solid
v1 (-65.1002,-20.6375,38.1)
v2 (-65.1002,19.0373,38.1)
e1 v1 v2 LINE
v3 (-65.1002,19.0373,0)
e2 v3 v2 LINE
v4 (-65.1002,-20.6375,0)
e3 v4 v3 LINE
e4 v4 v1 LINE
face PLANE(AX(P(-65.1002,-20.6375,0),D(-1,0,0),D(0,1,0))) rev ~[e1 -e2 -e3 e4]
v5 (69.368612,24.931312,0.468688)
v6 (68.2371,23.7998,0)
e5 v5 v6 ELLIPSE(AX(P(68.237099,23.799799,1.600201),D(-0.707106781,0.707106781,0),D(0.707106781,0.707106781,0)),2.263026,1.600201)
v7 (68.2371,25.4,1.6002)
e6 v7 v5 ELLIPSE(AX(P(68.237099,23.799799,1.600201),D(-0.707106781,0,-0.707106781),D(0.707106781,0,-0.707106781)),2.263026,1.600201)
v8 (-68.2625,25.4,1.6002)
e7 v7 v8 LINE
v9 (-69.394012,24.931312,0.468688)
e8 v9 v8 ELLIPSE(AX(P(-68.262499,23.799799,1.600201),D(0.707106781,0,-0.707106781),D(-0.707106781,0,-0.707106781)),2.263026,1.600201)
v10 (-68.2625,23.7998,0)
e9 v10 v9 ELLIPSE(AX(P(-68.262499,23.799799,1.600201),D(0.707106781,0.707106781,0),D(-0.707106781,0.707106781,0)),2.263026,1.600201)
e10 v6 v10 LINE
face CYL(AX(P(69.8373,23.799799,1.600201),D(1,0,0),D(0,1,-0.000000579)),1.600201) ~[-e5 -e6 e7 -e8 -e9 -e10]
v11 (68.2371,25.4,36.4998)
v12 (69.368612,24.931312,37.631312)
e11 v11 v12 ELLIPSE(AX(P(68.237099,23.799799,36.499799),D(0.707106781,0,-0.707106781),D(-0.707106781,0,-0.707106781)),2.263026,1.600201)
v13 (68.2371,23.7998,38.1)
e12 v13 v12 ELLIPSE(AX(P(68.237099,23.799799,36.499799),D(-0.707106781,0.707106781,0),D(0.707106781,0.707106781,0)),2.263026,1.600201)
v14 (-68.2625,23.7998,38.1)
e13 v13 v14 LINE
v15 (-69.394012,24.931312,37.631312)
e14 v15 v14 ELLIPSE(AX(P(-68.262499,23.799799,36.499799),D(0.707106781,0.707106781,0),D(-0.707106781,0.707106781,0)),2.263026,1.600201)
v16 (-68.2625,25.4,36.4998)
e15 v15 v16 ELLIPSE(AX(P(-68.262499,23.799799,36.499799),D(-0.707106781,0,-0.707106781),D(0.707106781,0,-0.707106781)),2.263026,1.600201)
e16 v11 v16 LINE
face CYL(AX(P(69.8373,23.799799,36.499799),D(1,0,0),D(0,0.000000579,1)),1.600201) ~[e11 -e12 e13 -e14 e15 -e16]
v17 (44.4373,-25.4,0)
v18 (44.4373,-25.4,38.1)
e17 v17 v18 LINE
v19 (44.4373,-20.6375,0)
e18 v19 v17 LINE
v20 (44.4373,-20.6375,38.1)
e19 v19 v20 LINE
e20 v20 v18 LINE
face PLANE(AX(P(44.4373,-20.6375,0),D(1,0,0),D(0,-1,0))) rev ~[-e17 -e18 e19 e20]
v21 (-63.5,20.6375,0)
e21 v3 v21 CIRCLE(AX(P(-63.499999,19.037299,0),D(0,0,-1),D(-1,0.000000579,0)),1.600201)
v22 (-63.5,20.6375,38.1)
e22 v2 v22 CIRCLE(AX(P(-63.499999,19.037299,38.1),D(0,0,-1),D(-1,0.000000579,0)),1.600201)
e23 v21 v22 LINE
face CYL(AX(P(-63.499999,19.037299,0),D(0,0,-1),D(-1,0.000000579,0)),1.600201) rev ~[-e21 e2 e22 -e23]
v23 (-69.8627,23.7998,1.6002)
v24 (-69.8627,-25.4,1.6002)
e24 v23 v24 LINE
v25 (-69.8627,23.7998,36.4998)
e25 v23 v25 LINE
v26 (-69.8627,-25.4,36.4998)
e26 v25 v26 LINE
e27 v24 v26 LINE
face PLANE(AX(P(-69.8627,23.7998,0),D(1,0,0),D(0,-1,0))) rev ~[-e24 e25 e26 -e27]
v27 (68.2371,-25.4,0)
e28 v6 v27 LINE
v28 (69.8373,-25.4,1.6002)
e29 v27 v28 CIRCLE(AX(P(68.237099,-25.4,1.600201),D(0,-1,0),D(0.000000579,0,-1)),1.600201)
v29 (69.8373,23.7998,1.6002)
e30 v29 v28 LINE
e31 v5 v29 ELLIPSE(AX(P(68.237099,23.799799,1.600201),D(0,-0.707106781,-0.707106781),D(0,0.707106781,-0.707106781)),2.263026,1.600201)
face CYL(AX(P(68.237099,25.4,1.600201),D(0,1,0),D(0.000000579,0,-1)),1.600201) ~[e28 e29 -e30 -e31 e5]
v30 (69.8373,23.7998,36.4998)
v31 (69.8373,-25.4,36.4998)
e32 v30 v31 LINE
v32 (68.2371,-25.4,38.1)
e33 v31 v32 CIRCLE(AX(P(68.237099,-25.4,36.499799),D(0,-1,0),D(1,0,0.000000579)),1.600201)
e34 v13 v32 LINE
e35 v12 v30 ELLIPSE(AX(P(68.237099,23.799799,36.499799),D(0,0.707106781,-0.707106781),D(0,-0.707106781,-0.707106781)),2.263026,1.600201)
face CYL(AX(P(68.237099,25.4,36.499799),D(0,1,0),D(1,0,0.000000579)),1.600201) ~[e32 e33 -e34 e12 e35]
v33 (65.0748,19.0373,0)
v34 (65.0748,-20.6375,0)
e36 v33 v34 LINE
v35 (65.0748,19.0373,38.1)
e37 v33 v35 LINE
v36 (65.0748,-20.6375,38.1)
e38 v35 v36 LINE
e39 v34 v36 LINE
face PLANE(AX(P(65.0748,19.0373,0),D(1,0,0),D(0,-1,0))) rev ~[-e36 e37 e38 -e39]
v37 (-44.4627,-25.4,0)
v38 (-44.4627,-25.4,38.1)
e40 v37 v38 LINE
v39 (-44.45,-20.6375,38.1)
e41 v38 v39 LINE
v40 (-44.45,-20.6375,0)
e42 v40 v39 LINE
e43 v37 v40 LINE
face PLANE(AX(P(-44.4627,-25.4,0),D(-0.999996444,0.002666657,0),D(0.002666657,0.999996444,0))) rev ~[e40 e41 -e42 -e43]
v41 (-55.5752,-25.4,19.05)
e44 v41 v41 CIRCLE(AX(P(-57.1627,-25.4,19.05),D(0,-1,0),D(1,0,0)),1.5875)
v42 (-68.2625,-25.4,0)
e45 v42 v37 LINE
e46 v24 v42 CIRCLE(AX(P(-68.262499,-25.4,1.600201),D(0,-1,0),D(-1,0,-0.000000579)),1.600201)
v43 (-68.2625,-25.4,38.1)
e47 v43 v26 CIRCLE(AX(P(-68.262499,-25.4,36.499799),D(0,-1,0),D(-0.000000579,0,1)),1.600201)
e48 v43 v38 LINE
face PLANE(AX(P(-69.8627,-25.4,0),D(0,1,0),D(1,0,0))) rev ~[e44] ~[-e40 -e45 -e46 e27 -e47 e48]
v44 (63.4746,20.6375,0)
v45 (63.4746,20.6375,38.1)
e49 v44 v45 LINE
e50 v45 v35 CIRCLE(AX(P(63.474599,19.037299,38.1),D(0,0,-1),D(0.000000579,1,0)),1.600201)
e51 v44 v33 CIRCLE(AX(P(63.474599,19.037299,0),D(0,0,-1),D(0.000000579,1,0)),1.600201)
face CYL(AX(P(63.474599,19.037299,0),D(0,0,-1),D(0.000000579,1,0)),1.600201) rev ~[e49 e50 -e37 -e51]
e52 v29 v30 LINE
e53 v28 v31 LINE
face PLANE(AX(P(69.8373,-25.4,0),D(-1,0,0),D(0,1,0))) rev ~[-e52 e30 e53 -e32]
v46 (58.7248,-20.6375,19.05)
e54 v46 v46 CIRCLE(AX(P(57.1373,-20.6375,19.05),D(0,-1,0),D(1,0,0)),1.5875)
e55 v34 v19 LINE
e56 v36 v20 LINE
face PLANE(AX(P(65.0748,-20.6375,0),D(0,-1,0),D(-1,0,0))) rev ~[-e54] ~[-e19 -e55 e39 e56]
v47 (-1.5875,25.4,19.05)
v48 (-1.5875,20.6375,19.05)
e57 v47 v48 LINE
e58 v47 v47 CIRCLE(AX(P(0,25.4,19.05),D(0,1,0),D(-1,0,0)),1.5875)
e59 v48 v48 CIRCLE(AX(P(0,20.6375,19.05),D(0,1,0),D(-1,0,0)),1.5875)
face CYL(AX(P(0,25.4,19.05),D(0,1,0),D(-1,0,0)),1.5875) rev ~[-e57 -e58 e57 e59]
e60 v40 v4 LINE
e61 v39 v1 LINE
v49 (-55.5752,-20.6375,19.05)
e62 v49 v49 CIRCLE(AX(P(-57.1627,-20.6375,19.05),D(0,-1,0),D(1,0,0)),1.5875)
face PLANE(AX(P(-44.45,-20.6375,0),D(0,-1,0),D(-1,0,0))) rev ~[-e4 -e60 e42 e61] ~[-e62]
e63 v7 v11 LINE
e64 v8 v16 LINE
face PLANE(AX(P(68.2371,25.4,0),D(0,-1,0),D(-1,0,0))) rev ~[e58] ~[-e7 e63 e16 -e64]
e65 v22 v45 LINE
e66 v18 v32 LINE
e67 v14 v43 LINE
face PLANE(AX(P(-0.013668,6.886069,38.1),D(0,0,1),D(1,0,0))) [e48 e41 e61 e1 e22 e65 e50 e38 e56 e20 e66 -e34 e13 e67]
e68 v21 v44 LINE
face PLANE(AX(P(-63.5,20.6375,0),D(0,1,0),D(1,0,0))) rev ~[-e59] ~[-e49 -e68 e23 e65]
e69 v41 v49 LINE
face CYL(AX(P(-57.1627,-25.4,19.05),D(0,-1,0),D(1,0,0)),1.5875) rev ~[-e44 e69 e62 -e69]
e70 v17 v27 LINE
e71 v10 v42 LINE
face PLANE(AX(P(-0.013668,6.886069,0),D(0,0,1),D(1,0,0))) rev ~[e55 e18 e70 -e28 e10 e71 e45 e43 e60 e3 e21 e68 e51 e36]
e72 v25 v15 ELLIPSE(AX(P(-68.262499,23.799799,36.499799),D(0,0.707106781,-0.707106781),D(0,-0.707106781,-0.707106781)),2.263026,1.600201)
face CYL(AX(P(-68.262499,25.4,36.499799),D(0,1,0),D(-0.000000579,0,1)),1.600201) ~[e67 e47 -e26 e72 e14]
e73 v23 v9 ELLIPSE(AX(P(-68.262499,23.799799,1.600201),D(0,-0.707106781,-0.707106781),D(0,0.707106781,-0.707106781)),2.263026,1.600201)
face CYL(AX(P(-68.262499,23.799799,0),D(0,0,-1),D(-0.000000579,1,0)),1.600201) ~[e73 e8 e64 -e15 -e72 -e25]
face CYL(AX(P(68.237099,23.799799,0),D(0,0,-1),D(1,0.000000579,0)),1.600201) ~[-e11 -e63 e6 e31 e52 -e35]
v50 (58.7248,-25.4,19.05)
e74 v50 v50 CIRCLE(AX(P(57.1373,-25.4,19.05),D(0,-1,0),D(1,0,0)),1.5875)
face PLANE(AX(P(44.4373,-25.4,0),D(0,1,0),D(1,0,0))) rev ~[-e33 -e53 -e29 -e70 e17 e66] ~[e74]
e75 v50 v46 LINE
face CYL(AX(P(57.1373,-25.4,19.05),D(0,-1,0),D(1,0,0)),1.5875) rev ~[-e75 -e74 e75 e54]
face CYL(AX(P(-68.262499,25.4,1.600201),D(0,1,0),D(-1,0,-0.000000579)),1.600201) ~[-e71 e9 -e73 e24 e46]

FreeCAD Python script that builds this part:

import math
import FreeCAD as App
import Part
import Sketcher

V = App.Vector
Q = App.Units.Quantity

doc = App.newDocument("Part")
body = doc.addObject("PartDesign::Body", "Body")

# Sketch on XY plane
sketch1 = body.newObject("Sketcher::SketchObject", "Sketch")
sketch1.AttachmentSupport = (doc.getObject("XY_Plane"), [""])
sketch1.MapMode = "FlatFace"
sketch1.addGeometry([
    Part.LineSegment(V(-69.9, -25.4, 0), V(-44.5, -25.4, 0)),  # 0
    Part.LineSegment(V(-44.5, -25.4, 0), V(-44.5, -20.6, 0)),  # 1
    Part.LineSegment(V(-44.5, -20.6, 0), V(-65.1, -20.6, 0)),  # 2
    Part.LineSegment(V(-65.1, -20.6, 0), V(-65.1, 19, 0)),  # 3
    Part.ArcOfCircle(Part.Circle(V(-63.5, 19, 0), V(0, 0, 1), 1.6), math.radians(90), math.radians(180)),  # 4
    Part.LineSegment(V(-63.5, 20.6, 0), V(63.5, 20.6, 0)),  # 5
    Part.ArcOfCircle(Part.Circle(V(63.5, 19, 0), V(0, 0, 1), 1.6), math.radians(0), math.radians(90)),  # 6
    Part.LineSegment(V(65.1, 19, 0), V(65.1, -20.6, 0)),  # 7
    Part.LineSegment(V(65.1, -20.6, 0), V(44.4, -20.6, 0)),  # 8
    Part.LineSegment(V(44.4, -20.6, 0), V(44.4, -25.4, 0)),  # 9
    Part.LineSegment(V(44.4, -25.4, 0), V(69.8, -25.4, 0)),  # 10
    Part.LineSegment(V(69.8, -25.4, 0), V(69.8, 23.8, 0)),  # 11
    Part.ArcOfCircle(Part.Circle(V(68.2, 23.8, 0), V(0, 0, 1), 1.6), math.radians(0), math.radians(90)),  # 12
    Part.LineSegment(V(68.2, 25.4, 0), V(-68.3, 25.4, 0)),  # 13
    Part.ArcOfCircle(Part.Circle(V(-68.3, 23.8, 0), V(0, 0, 1), 1.6), math.radians(90), math.radians(180)),  # 14
    Part.LineSegment(V(-69.9, 23.8, 0), V(-69.9, -25.4, 0)),  # 15
], False)
sketch1.addConstraint([
    Sketcher.Constraint("Coincident", 0, 2, 1, 1),
    Sketcher.Constraint("Coincident", 1, 2, 2, 1),
    Sketcher.Constraint("Coincident", 2, 2, 3, 1),
    Sketcher.Constraint("Tangent", 3, 2, 4, 2),
    Sketcher.Constraint("Tangent", 4, 1, 5, 1),
    Sketcher.Constraint("Tangent", 5, 2, 6, 2),
    Sketcher.Constraint("Tangent", 6, 1, 7, 1),
    Sketcher.Constraint("Coincident", 7, 2, 8, 1),
    Sketcher.Constraint("Coincident", 8, 2, 9, 1),
    Sketcher.Constraint("Coincident", 9, 2, 10, 1),
    Sketcher.Constraint("Coincident", 10, 2, 11, 1),
    Sketcher.Constraint("Tangent", 11, 2, 12, 1),
    Sketcher.Constraint("Tangent", 12, 2, 13, 1),
    Sketcher.Constraint("Tangent", 13, 2, 14, 1),
    Sketcher.Constraint("Tangent", 14, 2, 15, 1),
    Sketcher.Constraint("Coincident", 15, 2, 0, 1),
    Sketcher.Constraint("Horizontal", 0),
    Sketcher.Constraint("Horizontal", 2),
    Sketcher.Constraint("Vertical", 3),
    Sketcher.Constraint("Horizontal", 5),
    Sketcher.Constraint("Vertical", 7),
    Sketcher.Constraint("Horizontal", 8),
    Sketcher.Constraint("Vertical", 9),
    Sketcher.Constraint("Horizontal", 10),
    Sketcher.Constraint("Vertical", 11),
    Sketcher.Constraint("Horizontal", 13),
    Sketcher.Constraint("Vertical", 15),
    Sketcher.Constraint("Equal", 4, 6),
    Sketcher.Constraint("Equal", 6, 12),
    Sketcher.Constraint("Equal", 12, 14),
    Sketcher.Constraint("Horizontal", 2, 2, 7, 2),
    Sketcher.Constraint("Horizontal", 0, 2, 9, 2),
    Sketcher.Constraint("Equal", 0, 10),
    Sketcher.Constraint("DistanceX", 0, 1, 0, 2, Q("1 in")),
    Sketcher.Constraint("DistanceY", 0, 2, -1, 1, Q("1 in")),
    Sketcher.Constraint("DistanceY", -1, 1, 12, 2, Q("1 in")),
    Sketcher.Constraint("Radius", 4, Q("0.063 in")),
    Sketcher.Constraint("DistanceX", 4, 3, -1, 1, Q("2.5 in")),
    Sketcher.Constraint("DistanceX", 2, 2, 2, 1, Q("0.813 in")),
    Sketcher.Constraint("DistanceX", 5, 1, 5, 2, Q("4.999 in")),
    Sketcher.Constraint("DistanceX", 8, 2, 8, 1, Q("0.8125 in")),
    Sketcher.Constraint("DistanceX", 13, 2, 13, 1, Q("5.374 in")),
    Sketcher.Constraint("DistanceY", 3, 1, 3, 2, Q("1.562 in")),
    Sketcher.Constraint("DistanceY", 9, 2, 9, 1, Q("0.1875 in")),
])
pad1 = body.newObject("PartDesign::Pad", "Pad")
pad1.Profile = sketch1
pad1.Length = Q("1.5 in")

# Sketch on XZ plane
sketch2 = body.newObject("Sketcher::SketchObject", "Sketch001")
sketch2.AttachmentSupport = (doc.getObject("XZ_Plane"), [""])
sketch2.MapMode = "FlatFace"
sketch2.AttachmentOffset = App.Placement(V(0, 0, 1 * 25.4), App.Rotation())
sketch2.addGeometry([
    Part.Circle(V(-57.2, 19.1, 0), V(0, 0, 1), 1.6),
    Part.Circle(V(57.1, 19.1, 0), V(0, 0, 1), 1.6),
], False)
sketch2.addConstraint([
    Sketcher.Constraint("Equal", 0, 1),
    Sketcher.Constraint("Horizontal", 0, 3, 1, 3),
    Sketcher.Constraint("Diameter", 0, Q("0.125 in")),
    Sketcher.Constraint("DistanceX", 0, 3, 1, 3, Q("4.5 in")),
    Sketcher.Constraint("DistanceY", -1, 1, 0, 3, Q("0.75 in")),
    Sketcher.Constraint("DistanceX", 0, 3, -1, 1, Q("2.2505 in")),
])
pocket1 = body.newObject("PartDesign::Pocket", "Pocket")
pocket1.Profile = sketch2
pocket1.Length = Q("0.1875 in")

# Sketch on XZ plane
sketch3 = body.newObject("Sketcher::SketchObject", "Sketch002")
sketch3.AttachmentSupport = (doc.getObject("XZ_Plane"), [""])
sketch3.MapMode = "FlatFace"
sketch3.AttachmentOffset = App.Placement(V(0, 0, -1 * 25.4), App.Rotation())
sketch3.addGeometry(Part.Circle(V(0, 19.1, 0), V(0, 0, 1), 1.6), False)
sketch3.addConstraint([
    Sketcher.Constraint("PointOnObject", 0, 3, -2),
    Sketcher.Constraint("Diameter", 0, Q("0.125 in")),
    Sketcher.Constraint("DistanceY", -1, 1, 0, 3, Q("0.75 in")),
])
pocket2 = body.newObject("PartDesign::Pocket", "Pocket001")
pocket2.Profile = sketch3
pocket2.Length = Q("0.1875 in")
pocket2.Reversed = True

# Sketch on XZ plane
sketch4 = body.newObject("Sketcher::SketchObject", "Sketch003")
sketch4.AttachmentSupport = (doc.getObject("XZ_Plane"), [""])
sketch4.MapMode = "FlatFace"
sketch4.AttachmentOffset = App.Placement(V(0, 0, -1 * 25.4), App.Rotation())
sketch4.addGeometry([
    Part.ArcOfCircle(Part.Circle(V(68.2, 36.5, 0), V(0, 0, 1), 1.6), math.radians(0), math.radians(90)),  # 0
    Part.LineSegment(V(68.2, 38.1, 0), V(69.8, 38.1, 0)),  # 1
    Part.LineSegment(V(69.8, 38.1, 0), V(69.8, 36.5, 0)),  # 2
    Part.ArcOfCircle(Part.Circle(V(68.2, 1.6, 0), V(0, 0, 1), 1.6), math.radians(-90), math.radians(0)),  # 3
    Part.LineSegment(V(69.8, 1.6, 0), V(69.8, 0, 0)),  # 4
    Part.LineSegment(V(69.8, 0, 0), V(68.2, 0, 0)),  # 5
    Part.ArcOfCircle(Part.Circle(V(-68.3, 1.6, 0), V(0, 0, 1), 1.6), math.radians(-180), math.radians(-90)),  # 6
    Part.LineSegment(V(-68.3, 0, 0), V(-69.9, 0, 0)),  # 7
    Part.LineSegment(V(-69.9, 0, 0), V(-69.9, 1.6, 0)),  # 8
    Part.ArcOfCircle(Part.Circle(V(-68.3, 36.5, 0), V(0, 0, 1), 1.6), math.radians(90), math.radians(180)),  # 9
    Part.LineSegment(V(-69.9, 36.5, 0), V(-69.9, 38.1, 0)),  # 10
    Part.LineSegment(V(-69.9, 38.1, 0), V(-68.3, 38.1, 0)),  # 11
], False)
sketch4.addConstraint([
    Sketcher.Constraint("Tangent", 0, 2, 1, 1),
    Sketcher.Constraint("Coincident", 1, 2, 2, 1),
    Sketcher.Constraint("Tangent", 2, 2, 0, 1),
    Sketcher.Constraint("Tangent", 3, 2, 4, 1),
    Sketcher.Constraint("Coincident", 4, 2, 5, 1),
    Sketcher.Constraint("Tangent", 5, 2, 3, 1),
    Sketcher.Constraint("Tangent", 6, 2, 7, 1),
    Sketcher.Constraint("Coincident", 7, 2, 8, 1),
    Sketcher.Constraint("Tangent", 8, 2, 6, 1),
    Sketcher.Constraint("Tangent", 9, 2, 10, 1),
    Sketcher.Constraint("Coincident", 10, 2, 11, 1),
    Sketcher.Constraint("Tangent", 11, 2, 9, 1),
    Sketcher.Constraint("Horizontal", 1),
    Sketcher.Constraint("Vertical", 2),
    Sketcher.Constraint("Vertical", 4),
    Sketcher.Constraint("Horizontal", 5),
    Sketcher.Constraint("Horizontal", 7),
    Sketcher.Constraint("Vertical", 8),
    Sketcher.Constraint("Vertical", 10),
    Sketcher.Constraint("Horizontal", 11),
    Sketcher.Constraint("Equal", 0, 3),
    Sketcher.Constraint("Equal", 3, 6),
    Sketcher.Constraint("Equal", 6, 9),
    Sketcher.Constraint("PointOnObject", 4, 2, -1),
    Sketcher.Constraint("PointOnObject", 6, 2, -1),
    Sketcher.Constraint("Horizontal", 0, 3, 9, 3),
    Sketcher.Constraint("Vertical", 0, 3, 3, 3),
    Sketcher.Constraint("Vertical", 6, 3, 9, 3),
    Sketcher.Constraint("Radius", 0, Q("0.063 in")),
    Sketcher.Constraint("DistanceY", -1, 1, 0, 2, Q("1.5 in")),
    Sketcher.Constraint("DistanceX", 6, 3, -1, 1, Q("2.6875 in")),
    Sketcher.Constraint("DistanceX", 6, 3, 3, 3, Q("5.3739999 in")),
])
pocket3 = body.newObject("PartDesign::Pocket", "Pocket002")
pocket3.Profile = sketch4
pocket3.Length = Q("2 in")
pocket3.Reversed = True

# Sketch on YZ plane
sketch5 = body.newObject("Sketcher::SketchObject", "Sketch004")
sketch5.AttachmentSupport = (doc.getObject("YZ_Plane"), [""])
sketch5.MapMode = "FlatFace"
sketch5.AttachmentOffset = App.Placement(V(0, 0, 2.7495 * 25.4), App.Rotation())
sketch5.addGeometry([
    Part.ArcOfCircle(Part.Circle(V(23.8, 36.5, 0), V(0, 0, 1), 1.6), math.radians(0), math.radians(90)),  # 0
    Part.LineSegment(V(25.4, 36.5, 0), V(25.4, 38.1, 0)),  # 1
    Part.LineSegment(V(25.4, 38.1, 0), V(23.8, 38.1, 0)),  # 2
    Part.ArcOfCircle(Part.Circle(V(23.8, 1.6, 0), V(0, 0, 1), 1.6), math.radians(-90), math.radians(0)),  # 3
    Part.LineSegment(V(23.8, 0, 0), V(25.4, 0, 0)),  # 4
    Part.LineSegment(V(25.4, 0, 0), V(25.4, 1.6, 0)),  # 5
], False)
sketch5.addConstraint([
    Sketcher.Constraint("Tangent", 0, 1, 1, 1),
    Sketcher.Constraint("Coincident", 1, 2, 2, 1),
    Sketcher.Constraint("Tangent", 2, 2, 0, 2),
    Sketcher.Constraint("Tangent", 3, 1, 4, 1),
    Sketcher.Constraint("Coincident", 4, 2, 5, 1),
    Sketcher.Constraint("Tangent", 5, 2, 3, 2),
    Sketcher.Constraint("Vertical", 1),
    Sketcher.Constraint("Horizontal", 2),
    Sketcher.Constraint("Horizontal", 4),
    Sketcher.Constraint("Vertical", 5),
    Sketcher.Constraint("Equal", 0, 3),
    Sketcher.Constraint("PointOnObject", 3, 1, -1),
    Sketcher.Constraint("Vertical", 0, 3, 3, 3),
    Sketcher.Constraint("DistanceX", -1, 1, 0, 1, Q("1 in")),
    Sketcher.Constraint("Radius", 0, Q("0.063 in")),
    Sketcher.Constraint("DistanceY", -1, 1, 1, 2, Q("1.5 in")),
])
pocket4 = body.newObject("PartDesign::Pocket", "Pocket003")
pocket4.Profile = sketch5
pocket4.Length = Q("5.5 in")

doc.recompute()
